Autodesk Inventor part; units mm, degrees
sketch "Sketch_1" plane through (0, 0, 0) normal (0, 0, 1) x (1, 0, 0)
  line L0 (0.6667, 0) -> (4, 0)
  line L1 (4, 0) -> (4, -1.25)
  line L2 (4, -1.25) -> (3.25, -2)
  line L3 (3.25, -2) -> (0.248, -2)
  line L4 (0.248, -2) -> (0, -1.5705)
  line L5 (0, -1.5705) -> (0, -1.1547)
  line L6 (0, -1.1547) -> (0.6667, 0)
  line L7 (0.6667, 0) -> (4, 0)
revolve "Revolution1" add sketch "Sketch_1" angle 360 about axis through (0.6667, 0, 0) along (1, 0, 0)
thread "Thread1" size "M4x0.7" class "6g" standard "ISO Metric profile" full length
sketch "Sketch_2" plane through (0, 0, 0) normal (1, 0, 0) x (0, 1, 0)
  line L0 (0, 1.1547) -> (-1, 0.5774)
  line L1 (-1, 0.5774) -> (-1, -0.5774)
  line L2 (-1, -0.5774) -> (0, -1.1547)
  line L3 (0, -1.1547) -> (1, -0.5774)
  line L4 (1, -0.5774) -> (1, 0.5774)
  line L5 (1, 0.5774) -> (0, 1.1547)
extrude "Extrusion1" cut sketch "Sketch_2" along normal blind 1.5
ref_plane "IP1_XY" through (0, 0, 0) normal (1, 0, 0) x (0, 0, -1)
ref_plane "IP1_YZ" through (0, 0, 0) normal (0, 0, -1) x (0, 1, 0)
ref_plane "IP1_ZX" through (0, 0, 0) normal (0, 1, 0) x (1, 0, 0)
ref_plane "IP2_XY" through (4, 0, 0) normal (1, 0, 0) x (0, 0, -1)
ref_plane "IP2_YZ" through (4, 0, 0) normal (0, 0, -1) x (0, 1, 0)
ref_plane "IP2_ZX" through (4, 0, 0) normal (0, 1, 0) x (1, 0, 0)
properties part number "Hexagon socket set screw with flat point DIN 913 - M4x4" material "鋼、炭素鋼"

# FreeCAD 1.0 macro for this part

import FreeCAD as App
import Part
import Sketcher
Q = App.Units.Quantity

doc = App.newDocument("Part")
body = doc.addObject("PartDesign::Body", "Body")

sketch1 = body.newObject("Sketcher::SketchObject", "Sketch")
sketch1.AttachmentSupport = (doc.getObject("XY_Plane"), [""])
sketch1.MapMode = "FlatFace"
sketch1.addGeometry(Part.LineSegment(App.Vector(4, 0, 0), App.Vector(0.67, 0, 0)), False)
sketch1.addGeometry(Part.LineSegment(App.Vector(0.67, 0, 0), App.Vector(0, -1.15, 0)), False)
sketch1.addGeometry(Part.LineSegment(App.Vector(0, -1.15, 0), App.Vector(0, -1.57, 0)), False)
sketch1.addGeometry(Part.LineSegment(App.Vector(0, -1.57, 0), App.Vector(0.25, -2, 0)), False)
sketch1.addGeometry(Part.LineSegment(App.Vector(0.25, -2, 0), App.Vector(3.25, -2, 0)), False)
sketch1.addGeometry(Part.LineSegment(App.Vector(3.25, -2, 0), App.Vector(4, -1.25, 0)), False)
sketch1.addGeometry(Part.LineSegment(App.Vector(4, -1.25, 0), App.Vector(4, 0, 0)), False)
sketch1.addConstraint(Sketcher.Constraint("Coincident", 0, 2, 1, 1))
sketch1.addConstraint(Sketcher.Constraint("Coincident", 1, 2, 2, 1))
sketch1.addConstraint(Sketcher.Constraint("Coincident", 2, 2, 3, 1))
sketch1.addConstraint(Sketcher.Constraint("Coincident", 3, 2, 4, 1))
sketch1.addConstraint(Sketcher.Constraint("Coincident", 4, 2, 5, 1))
sketch1.addConstraint(Sketcher.Constraint("Coincident", 5, 2, 6, 1))
sketch1.addConstraint(Sketcher.Constraint("Coincident", 6, 2, 0, 1))
sketch1.addConstraint(Sketcher.Constraint("Horizontal", 0))
sketch1.addConstraint(Sketcher.Constraint("Vertical", 2))
sketch1.addConstraint(Sketcher.Constraint("Horizontal", 4))
sketch1.addConstraint(Sketcher.Constraint("Vertical", 6))
sketch1.addConstraint(Sketcher.Constraint("PointOnObject", 0, 2, -1))
sketch1.addConstraint(Sketcher.Constraint("PointOnObject", 1, 2, -2))
sketch1.addConstraint(Sketcher.Constraint("Angle", 5, Q("45 deg")))
sketch1.addConstraint(Sketcher.Constraint("DistanceY", 3, 2, -1, 1, 2.0))
sketch1.addConstraint(Sketcher.Constraint("DistanceX", -1, 1, 5, 2, 4.0))
sketch1.addConstraint(Sketcher.Constraint("DistanceY", 6, 1, 6, 2, 1.25))
sketch1.addConstraint(Sketcher.Constraint("DistanceX", 4, 1, 4, 2, 3.002))
sketch1.addConstraint(Sketcher.Constraint("Distance", 3, 0.496))
sketch1.addConstraint(Sketcher.Constraint("DistanceX", 0, 2, 0, 1, 3.3333))
sketch1.addConstraint(Sketcher.Constraint("DistanceY", 2, 2, 2, 1, 0.4158))
revolution = body.newObject("PartDesign::Revolution", "Revolution")
revolution.Profile = sketch1
revolution.ReferenceAxis = (sketch1, ["H_Axis"])
revolution.Angle = 360

sketch2 = body.newObject("Sketcher::SketchObject", "Sketch001")
sketch2.AttachmentSupport = (doc.getObject("YZ_Plane"), [""])
sketch2.MapMode = "FlatFace"
sketch2.addGeometry(Part.LineSegment(App.Vector(1, 0.6, 0), App.Vector(0, 1.2, 0)), False)
sketch2.addGeometry(Part.LineSegment(App.Vector(0, 1.2, 0), App.Vector(-1, 0.6, 0)), False)
sketch2.addGeometry(Part.LineSegment(App.Vector(-1, 0.6, 0), App.Vector(-1, -0.6, 0)), False)
sketch2.addGeometry(Part.LineSegment(App.Vector(-1, -0.6, 0), App.Vector(0, -1.2, 0)), False)
sketch2.addGeometry(Part.LineSegment(App.Vector(0, -1.2, 0), App.Vector(1, -0.6, 0)), False)
sketch2.addGeometry(Part.LineSegment(App.Vector(1, -0.6, 0), App.Vector(1, 0.6, 0)), False)
sketch2.addConstraint(Sketcher.Constraint("Coincident", 0, 2, 1, 1))
sketch2.addConstraint(Sketcher.Constraint("Coincident", 1, 2, 2, 1))
sketch2.addConstraint(Sketcher.Constraint("Coincident", 2, 2, 3, 1))
sketch2.addConstraint(Sketcher.Constraint("Coincident", 3, 2, 4, 1))
sketch2.addConstraint(Sketcher.Constraint("Coincident", 4, 2, 5, 1))
sketch2.addConstraint(Sketcher.Constraint("Coincident", 5, 2, 0, 1))
sketch2.addConstraint(Sketcher.Constraint("Vertical", 2))
sketch2.addConstraint(Sketcher.Constraint("Vertical", 5))
sketch2.addConstraint(Sketcher.Constraint("Symmetric", 0, 2, 3, 2, -1, 1))
sketch2.addConstraint(Sketcher.Constraint("Symmetric", 1, 2, 4, 2, -1, 1))
sketch2.addConstraint(Sketcher.Constraint("PointOnObject", 0, 2, -2))
sketch2.addConstraint(Sketcher.Constraint("Parallel", 0, 3))
sketch2.addConstraint(Sketcher.Constraint("Horizontal", 2, 2, 4, 2))
sketch2.addConstraint(Sketcher.Constraint("DistanceX", 1, 2, -1, 1, 1.0))
sketch2.addConstraint(Sketcher.Constraint("DistanceY", 2, 2, 2, 1, 1.1548))
sketch2.addConstraint(Sketcher.Constraint("DistanceY", 2, 2, 0, 2, 1.732))
pocket1 = body.newObject("PartDesign::Pocket", "Pocket")
pocket1.Profile = sketch2
pocket1.Length = 1.5
pocket1.Reversed = True

doc.recompute()
